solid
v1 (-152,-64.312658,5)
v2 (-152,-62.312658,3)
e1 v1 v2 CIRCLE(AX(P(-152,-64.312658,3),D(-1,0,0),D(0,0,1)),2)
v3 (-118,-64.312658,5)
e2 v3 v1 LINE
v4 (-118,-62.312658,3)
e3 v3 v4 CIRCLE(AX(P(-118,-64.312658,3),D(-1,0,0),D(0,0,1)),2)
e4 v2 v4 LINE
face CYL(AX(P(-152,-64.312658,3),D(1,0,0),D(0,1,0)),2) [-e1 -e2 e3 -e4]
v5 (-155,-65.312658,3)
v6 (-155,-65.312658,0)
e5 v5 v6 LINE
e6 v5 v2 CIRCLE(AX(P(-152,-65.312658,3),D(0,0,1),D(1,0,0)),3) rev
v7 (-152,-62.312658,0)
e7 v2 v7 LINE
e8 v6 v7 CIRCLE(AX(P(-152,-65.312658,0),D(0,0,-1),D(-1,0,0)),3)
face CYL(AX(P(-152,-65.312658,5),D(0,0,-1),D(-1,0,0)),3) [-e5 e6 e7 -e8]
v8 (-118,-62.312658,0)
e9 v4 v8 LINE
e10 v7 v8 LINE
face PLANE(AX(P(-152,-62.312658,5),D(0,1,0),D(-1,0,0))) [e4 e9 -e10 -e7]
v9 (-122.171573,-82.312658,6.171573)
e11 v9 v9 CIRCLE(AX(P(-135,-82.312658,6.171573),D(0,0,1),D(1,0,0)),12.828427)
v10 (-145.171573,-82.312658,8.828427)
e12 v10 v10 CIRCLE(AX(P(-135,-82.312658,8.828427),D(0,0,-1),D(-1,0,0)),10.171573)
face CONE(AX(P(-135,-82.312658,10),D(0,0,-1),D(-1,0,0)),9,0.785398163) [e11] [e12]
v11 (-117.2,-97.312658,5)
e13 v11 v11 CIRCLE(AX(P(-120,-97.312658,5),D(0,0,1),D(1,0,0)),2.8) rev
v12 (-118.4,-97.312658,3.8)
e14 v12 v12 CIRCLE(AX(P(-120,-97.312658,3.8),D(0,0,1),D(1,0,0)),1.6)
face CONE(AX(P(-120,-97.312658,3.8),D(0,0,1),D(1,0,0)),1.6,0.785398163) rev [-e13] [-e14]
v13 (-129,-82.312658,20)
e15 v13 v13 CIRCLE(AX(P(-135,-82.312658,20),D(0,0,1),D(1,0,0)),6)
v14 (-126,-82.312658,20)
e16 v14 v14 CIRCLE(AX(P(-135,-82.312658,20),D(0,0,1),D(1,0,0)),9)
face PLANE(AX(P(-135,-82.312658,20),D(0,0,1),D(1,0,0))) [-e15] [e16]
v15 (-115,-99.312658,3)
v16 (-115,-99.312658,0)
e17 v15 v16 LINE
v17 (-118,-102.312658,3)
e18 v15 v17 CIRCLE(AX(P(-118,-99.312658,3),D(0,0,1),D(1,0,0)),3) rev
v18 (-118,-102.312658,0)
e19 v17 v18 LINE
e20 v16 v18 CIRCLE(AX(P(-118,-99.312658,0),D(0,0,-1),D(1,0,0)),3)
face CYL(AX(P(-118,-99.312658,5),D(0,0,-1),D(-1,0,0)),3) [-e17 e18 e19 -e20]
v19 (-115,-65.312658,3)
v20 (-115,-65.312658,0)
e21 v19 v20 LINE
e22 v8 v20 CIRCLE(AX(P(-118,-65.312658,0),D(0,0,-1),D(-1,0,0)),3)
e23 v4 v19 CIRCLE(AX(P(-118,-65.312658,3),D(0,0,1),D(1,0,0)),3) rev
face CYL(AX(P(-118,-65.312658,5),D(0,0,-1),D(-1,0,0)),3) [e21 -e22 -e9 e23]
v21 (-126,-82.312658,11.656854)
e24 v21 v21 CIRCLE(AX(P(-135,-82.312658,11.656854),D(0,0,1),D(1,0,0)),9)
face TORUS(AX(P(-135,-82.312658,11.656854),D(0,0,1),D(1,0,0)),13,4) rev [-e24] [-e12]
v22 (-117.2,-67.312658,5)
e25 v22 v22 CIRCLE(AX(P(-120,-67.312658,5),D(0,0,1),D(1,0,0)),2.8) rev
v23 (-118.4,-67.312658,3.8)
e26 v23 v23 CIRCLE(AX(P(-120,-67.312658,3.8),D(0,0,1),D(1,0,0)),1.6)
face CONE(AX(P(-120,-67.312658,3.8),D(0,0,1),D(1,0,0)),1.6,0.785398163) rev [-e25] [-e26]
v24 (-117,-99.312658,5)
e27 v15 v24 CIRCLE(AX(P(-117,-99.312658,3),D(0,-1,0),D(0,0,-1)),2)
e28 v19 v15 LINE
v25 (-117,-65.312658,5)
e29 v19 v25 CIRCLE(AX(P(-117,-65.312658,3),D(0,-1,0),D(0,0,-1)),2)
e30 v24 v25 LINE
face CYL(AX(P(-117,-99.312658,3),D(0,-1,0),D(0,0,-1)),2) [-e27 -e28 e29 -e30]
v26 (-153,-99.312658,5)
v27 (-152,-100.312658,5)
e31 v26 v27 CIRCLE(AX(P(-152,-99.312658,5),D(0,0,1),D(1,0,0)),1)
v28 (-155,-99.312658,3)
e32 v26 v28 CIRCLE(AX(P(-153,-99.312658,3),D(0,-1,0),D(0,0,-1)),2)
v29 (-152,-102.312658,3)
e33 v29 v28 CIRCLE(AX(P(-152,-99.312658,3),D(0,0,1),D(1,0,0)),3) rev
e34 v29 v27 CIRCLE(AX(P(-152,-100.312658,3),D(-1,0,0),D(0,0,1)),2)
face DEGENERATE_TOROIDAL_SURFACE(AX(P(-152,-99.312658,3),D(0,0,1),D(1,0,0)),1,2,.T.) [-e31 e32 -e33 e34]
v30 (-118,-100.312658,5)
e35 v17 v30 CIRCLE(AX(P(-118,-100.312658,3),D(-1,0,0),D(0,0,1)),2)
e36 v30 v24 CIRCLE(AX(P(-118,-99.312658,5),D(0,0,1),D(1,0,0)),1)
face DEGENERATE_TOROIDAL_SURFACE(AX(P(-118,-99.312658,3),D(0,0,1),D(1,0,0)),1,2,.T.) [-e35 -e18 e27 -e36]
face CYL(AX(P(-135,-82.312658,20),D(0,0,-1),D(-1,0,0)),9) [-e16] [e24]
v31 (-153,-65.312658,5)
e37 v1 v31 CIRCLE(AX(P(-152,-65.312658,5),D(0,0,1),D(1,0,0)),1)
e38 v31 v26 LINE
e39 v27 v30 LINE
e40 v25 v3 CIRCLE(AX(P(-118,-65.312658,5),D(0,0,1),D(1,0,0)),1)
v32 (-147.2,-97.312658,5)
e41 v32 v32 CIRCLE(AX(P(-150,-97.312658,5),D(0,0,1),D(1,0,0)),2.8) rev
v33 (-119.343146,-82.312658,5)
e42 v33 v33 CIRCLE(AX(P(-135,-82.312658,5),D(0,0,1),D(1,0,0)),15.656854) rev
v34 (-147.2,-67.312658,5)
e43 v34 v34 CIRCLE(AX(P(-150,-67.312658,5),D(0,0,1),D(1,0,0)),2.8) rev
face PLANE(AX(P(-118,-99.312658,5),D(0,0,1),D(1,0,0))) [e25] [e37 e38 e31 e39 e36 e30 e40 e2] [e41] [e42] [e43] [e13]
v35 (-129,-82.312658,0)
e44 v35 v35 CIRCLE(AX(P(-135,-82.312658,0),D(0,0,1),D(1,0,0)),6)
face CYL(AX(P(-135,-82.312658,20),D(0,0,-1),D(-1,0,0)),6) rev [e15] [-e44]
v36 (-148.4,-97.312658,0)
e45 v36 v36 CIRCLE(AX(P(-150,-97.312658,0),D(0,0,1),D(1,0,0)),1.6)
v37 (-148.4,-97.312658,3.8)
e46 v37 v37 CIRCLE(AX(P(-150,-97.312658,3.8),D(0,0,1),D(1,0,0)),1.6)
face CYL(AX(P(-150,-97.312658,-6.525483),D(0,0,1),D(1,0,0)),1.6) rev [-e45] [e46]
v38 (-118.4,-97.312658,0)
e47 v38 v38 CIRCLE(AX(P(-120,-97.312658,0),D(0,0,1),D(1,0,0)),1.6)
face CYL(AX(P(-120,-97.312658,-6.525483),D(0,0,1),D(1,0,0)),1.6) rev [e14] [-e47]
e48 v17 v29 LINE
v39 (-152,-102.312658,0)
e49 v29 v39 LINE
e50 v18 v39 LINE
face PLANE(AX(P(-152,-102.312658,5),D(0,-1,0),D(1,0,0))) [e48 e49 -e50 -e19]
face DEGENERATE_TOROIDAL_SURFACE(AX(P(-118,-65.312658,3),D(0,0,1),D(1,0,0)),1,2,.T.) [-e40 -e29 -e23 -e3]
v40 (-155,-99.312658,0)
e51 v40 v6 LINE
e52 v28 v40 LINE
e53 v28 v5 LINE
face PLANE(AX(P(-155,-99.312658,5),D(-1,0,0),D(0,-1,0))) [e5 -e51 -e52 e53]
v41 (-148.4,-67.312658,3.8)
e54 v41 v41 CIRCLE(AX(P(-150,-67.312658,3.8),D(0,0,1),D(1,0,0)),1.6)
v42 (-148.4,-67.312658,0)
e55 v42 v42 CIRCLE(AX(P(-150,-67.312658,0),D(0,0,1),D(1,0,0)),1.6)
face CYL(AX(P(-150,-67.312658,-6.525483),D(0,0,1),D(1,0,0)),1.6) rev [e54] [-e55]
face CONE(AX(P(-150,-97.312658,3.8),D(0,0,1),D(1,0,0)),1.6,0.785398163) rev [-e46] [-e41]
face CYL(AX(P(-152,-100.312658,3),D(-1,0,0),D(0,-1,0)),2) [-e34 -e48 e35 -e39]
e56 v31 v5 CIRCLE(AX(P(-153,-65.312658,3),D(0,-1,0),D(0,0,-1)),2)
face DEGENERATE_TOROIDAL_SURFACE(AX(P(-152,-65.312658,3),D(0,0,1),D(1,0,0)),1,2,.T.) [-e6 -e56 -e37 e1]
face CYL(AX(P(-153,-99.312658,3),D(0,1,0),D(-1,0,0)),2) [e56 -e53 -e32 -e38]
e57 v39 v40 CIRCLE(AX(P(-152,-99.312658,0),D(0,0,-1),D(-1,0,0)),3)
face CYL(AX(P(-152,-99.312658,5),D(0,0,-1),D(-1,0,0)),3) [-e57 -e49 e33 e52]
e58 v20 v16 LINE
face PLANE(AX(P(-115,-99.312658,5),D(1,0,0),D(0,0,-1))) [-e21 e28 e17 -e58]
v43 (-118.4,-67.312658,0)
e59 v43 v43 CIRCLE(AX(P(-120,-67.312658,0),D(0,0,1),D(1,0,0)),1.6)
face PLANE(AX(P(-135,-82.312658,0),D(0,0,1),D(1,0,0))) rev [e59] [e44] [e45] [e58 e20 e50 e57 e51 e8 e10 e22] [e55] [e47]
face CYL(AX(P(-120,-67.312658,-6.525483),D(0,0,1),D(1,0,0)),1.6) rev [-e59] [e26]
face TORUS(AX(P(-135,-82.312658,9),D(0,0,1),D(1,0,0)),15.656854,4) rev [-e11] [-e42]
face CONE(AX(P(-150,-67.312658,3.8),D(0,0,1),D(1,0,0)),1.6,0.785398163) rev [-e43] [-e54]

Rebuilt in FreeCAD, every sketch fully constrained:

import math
import FreeCAD as App
import Part
import Sketcher

V = App.Vector
Q = App.Units.Quantity


def edges_at(feature, points):
    """Names of the edges that pass closest to the given points."""
    edges = feature.Shape.Edges
    near = lambda p: min(range(len(edges)), key=lambda i: edges[i].distToShape(Part.Vertex(*p))[0])
    return sorted({f"Edge{near(p) + 1}" for p in points})

doc = App.newDocument("Part")
body = doc.addObject("PartDesign::Body", "Body")

sketch1 = doc.addObject("Sketcher::SketchObject", "Sketch")
body.addObject(sketch1)
sketch1.AttachmentSupport = (doc.XY_Plane, [""])
sketch1.MapMode = "FlatFace"
sketch1.addGeometry(Part.Circle(V(-135, -82, 0), V(0, 0, 1), 9), False)
sketch1.addGeometry(Part.Circle(V(-135, -82, 0), V(0, 0, 1), 6), False)
sketch1.addConstraint(Sketcher.Constraint("Coincident", 1, 3, 0, 3))
sketch1.addConstraint(Sketcher.Constraint("Diameter", 0, Q("18 mm")))
sketch1.addConstraint(Sketcher.Constraint("Diameter", 1, Q("12 mm")))
sketch1.addConstraint(Sketcher.Constraint("DistanceX", 0, 3, -1, 1, Q("135 mm")))
sketch1.addConstraint(Sketcher.Constraint("DistanceY", 0, 3, -1, 1, Q("82.312658 mm")))
pad1 = doc.addObject("PartDesign::Pad", "Pad")
body.addObject(pad1)
pad1.Profile = sketch1
pad1.Length = 20

sketch2 = doc.addObject("Sketcher::SketchObject", "Sketch001")
body.addObject(sketch2)
sketch2.AttachmentSupport = (doc.XY_Plane, [""])
sketch2.MapMode = "FlatFace"
sketch2.addGeometry(Part.LineSegment(V(-118, -102.3, 0), V(-152, -102.3, 0)), False)
sketch2.addGeometry(Part.ArcOfCircle(Part.Circle(V(-152, -99.3, 0), V(0, 0, 1), 3), math.radians(180), math.radians(270)), False)
sketch2.addGeometry(Part.LineSegment(V(-155, -99.3, 0), V(-155, -65.3, 0)), False)
sketch2.addGeometry(Part.ArcOfCircle(Part.Circle(V(-152, -65.3, 0), V(0, 0, 1), 3), math.radians(90), math.radians(180)), False)
sketch2.addGeometry(Part.LineSegment(V(-152, -62.3, 0), V(-118, -62.3, 0)), False)
sketch2.addGeometry(Part.ArcOfCircle(Part.Circle(V(-118, -65.3, 0), V(0, 0, 1), 3), math.radians(0), math.radians(90)), False)
sketch2.addGeometry(Part.LineSegment(V(-115, -65.3, 0), V(-115, -99.3, 0)), False)
sketch2.addGeometry(Part.ArcOfCircle(Part.Circle(V(-118, -99.3, 0), V(0, 0, 1), 3), math.radians(-90), math.radians(0)), False)
sketch2.addGeometry(Part.Circle(V(-135, -82.3, 0), V(0, 0, 1), 6), False)
sketch2.addConstraint(Sketcher.Constraint("Tangent", 0, 2, 1, 2))
sketch2.addConstraint(Sketcher.Constraint("Tangent", 1, 1, 2, 1))
sketch2.addConstraint(Sketcher.Constraint("Tangent", 2, 2, 3, 2))
sketch2.addConstraint(Sketcher.Constraint("Tangent", 3, 1, 4, 1))
sketch2.addConstraint(Sketcher.Constraint("Tangent", 4, 2, 5, 2))
sketch2.addConstraint(Sketcher.Constraint("Tangent", 5, 1, 6, 1))
sketch2.addConstraint(Sketcher.Constraint("Tangent", 6, 2, 7, 2))
sketch2.addConstraint(Sketcher.Constraint("Tangent", 7, 1, 0, 1))
sketch2.addConstraint(Sketcher.Constraint("Horizontal", 0))
sketch2.addConstraint(Sketcher.Constraint("Vertical", 2))
sketch2.addConstraint(Sketcher.Constraint("Horizontal", 4))
sketch2.addConstraint(Sketcher.Constraint("Vertical", 6))
sketch2.addConstraint(Sketcher.Constraint("Equal", 1, 3))
sketch2.addConstraint(Sketcher.Constraint("Equal", 3, 5))
sketch2.addConstraint(Sketcher.Constraint("Equal", 5, 7))
sketch2.addConstraint(Sketcher.Constraint("Equal", 4, 2))
sketch2.addConstraint(Sketcher.Constraint("Diameter", 8, Q("12 mm")))
sketch2.addConstraint(Sketcher.Constraint("Radius", 1, Q("3 mm")))
sketch2.addConstraint(Sketcher.Constraint("DistanceX", 0, 2, 0, 1, Q("34 mm")))
sketch2.addConstraint(Sketcher.Constraint("DistanceX", 1, 3, -1, 1, Q("152 mm")))
sketch2.addConstraint(Sketcher.Constraint("DistanceX", 8, 3, -1, 1, Q("135 mm")))
sketch2.addConstraint(Sketcher.Constraint("DistanceY", 1, 3, 8, 3, Q("17 mm")))
sketch2.addConstraint(Sketcher.Constraint("DistanceY", 1, 3, -1, 1, Q("99.312658 mm")))
pad2 = doc.addObject("PartDesign::Pad", "Pad001")
body.addObject(pad2)
pad2.Profile = sketch2
pad2.Length = 5
doc.recompute()

fillet = doc.addObject("PartDesign::Fillet", "Fillet")
body.addObject(fillet)
fillet.Base = (pad2, edges_at(pad2, [
    (-115.879, -101.434, 5),
    (-115, -82.313, 5),
    (-115.879, -63.191, 5),
    (-135, -62.313, 5),
    (-154.121, -63.191, 5),
    (-155, -82.313, 5),
    (-154.121, -101.434, 5),
    (-135, -102.313, 5),
]))
fillet.Radius = 2

sketch3 = doc.addObject("Sketcher::SketchObject", "Sketch002")
body.addObject(sketch3)
sketch3.AttachmentSupport = (doc.XY_Plane, [""])
sketch3.MapMode = "FlatFace"
sketch3.AttachmentOffset = App.Placement(V(0, 0, 5), App.Rotation())
sketch3.addGeometry(Part.Circle(V(-150, -67.3, 0), V(0, 0, 1), 1.6), False)
sketch3.addConstraint(Sketcher.Constraint("Diameter", 0, Q("3.2 mm")))
sketch3.addConstraint(Sketcher.Constraint("DistanceX", 0, 3, -1, 1, Q("150 mm")))
sketch3.addConstraint(Sketcher.Constraint("DistanceY", 0, 3, -1, 1, Q("67.312658 mm")))
pocket1 = doc.addObject("PartDesign::Pocket", "Pocket")
body.addObject(pocket1)
pocket1.Profile = sketch3
pocket1.Type = "UpToFirst"

sketch4 = doc.addObject("Sketcher::SketchObject", "Sketch003")
body.addObject(sketch4)
sketch4.AttachmentSupport = (doc.XY_Plane, [""])
sketch4.MapMode = "FlatFace"
sketch4.AttachmentOffset = App.Placement(V(0, 0, 5), App.Rotation())
sketch4.addGeometry(Part.Circle(V(-120, -67.3, 0), V(0, 0, 1), 1.6), False)
sketch4.addConstraint(Sketcher.Constraint("Diameter", 0, Q("3.2 mm")))
sketch4.addConstraint(Sketcher.Constraint("DistanceX", 0, 3, -1, 1, Q("120 mm")))
sketch4.addConstraint(Sketcher.Constraint("DistanceY", 0, 3, -1, 1, Q("67.312658 mm")))
pocket2 = doc.addObject("PartDesign::Pocket", "Pocket001")
body.addObject(pocket2)
pocket2.Profile = sketch4
pocket2.Type = "UpToFirst"

sketch5 = doc.addObject("Sketcher::SketchObject", "Sketch004")
body.addObject(sketch5)
sketch5.AttachmentSupport = (doc.XY_Plane, [""])
sketch5.MapMode = "FlatFace"
sketch5.AttachmentOffset = App.Placement(V(0, 0, 5), App.Rotation())
sketch5.addGeometry(Part.Circle(V(-120, -97.3, 0), V(0, 0, 1), 1.6), False)
sketch5.addConstraint(Sketcher.Constraint("Diameter", 0, Q("3.2 mm")))
sketch5.addConstraint(Sketcher.Constraint("DistanceX", 0, 3, -1, 1, Q("120 mm")))
sketch5.addConstraint(Sketcher.Constraint("DistanceY", 0, 3, -1, 1, Q("97.312658 mm")))
pocket3 = doc.addObject("PartDesign::Pocket", "Pocket002")
body.addObject(pocket3)
pocket3.Profile = sketch5
pocket3.Type = "UpToFirst"

sketch6 = doc.addObject("Sketcher::SketchObject", "Sketch005")
body.addObject(sketch6)
sketch6.AttachmentSupport = (doc.XY_Plane, [""])
sketch6.MapMode = "FlatFace"
sketch6.AttachmentOffset = App.Placement(V(0, 0, 5), App.Rotation())
sketch6.addGeometry(Part.Circle(V(-150, -97.3, 0), V(0, 0, 1), 1.6), False)
sketch6.addConstraint(Sketcher.Constraint("Diameter", 0, Q("3.2 mm")))
sketch6.addConstraint(Sketcher.Constraint("DistanceX", 0, 3, -1, 1, Q("150 mm")))
sketch6.addConstraint(Sketcher.Constraint("DistanceY", 0, 3, -1, 1, Q("97.312658 mm")))
pocket4 = doc.addObject("PartDesign::Pocket", "Pocket003")
body.addObject(pocket4)
pocket4.Profile = sketch6
pocket4.Type = "UpToFirst"
doc.recompute()

chamfer = doc.addObject("PartDesign::Chamfer", "Chamfer")
body.addObject(chamfer)
chamfer.Base = (pocket4, edges_at(pocket4, [(-144, -82.313, 5)]))
chamfer.Size = 5
doc.recompute()

fillet2 = doc.addObject("PartDesign::Fillet", "Fillet001")
body.addObject(fillet2)
fillet2.Base = (chamfer, edges_at(chamfer, [(-144, -82.313, 10), (-149, -82.313, 5)]))
fillet2.Radius = 4
doc.recompute()

chamfer2 = doc.addObject("PartDesign::Chamfer", "Chamfer001")
body.addObject(chamfer2)
chamfer2.Base = (fillet2, edges_at(fillet2, [
    (-151.6, -97.313, 5),
    (-121.6, -97.313, 5),
    (-121.6, -67.313, 5),
    (-151.6, -67.313, 5),
]))
chamfer2.Size = 1.2

doc.recompute()
